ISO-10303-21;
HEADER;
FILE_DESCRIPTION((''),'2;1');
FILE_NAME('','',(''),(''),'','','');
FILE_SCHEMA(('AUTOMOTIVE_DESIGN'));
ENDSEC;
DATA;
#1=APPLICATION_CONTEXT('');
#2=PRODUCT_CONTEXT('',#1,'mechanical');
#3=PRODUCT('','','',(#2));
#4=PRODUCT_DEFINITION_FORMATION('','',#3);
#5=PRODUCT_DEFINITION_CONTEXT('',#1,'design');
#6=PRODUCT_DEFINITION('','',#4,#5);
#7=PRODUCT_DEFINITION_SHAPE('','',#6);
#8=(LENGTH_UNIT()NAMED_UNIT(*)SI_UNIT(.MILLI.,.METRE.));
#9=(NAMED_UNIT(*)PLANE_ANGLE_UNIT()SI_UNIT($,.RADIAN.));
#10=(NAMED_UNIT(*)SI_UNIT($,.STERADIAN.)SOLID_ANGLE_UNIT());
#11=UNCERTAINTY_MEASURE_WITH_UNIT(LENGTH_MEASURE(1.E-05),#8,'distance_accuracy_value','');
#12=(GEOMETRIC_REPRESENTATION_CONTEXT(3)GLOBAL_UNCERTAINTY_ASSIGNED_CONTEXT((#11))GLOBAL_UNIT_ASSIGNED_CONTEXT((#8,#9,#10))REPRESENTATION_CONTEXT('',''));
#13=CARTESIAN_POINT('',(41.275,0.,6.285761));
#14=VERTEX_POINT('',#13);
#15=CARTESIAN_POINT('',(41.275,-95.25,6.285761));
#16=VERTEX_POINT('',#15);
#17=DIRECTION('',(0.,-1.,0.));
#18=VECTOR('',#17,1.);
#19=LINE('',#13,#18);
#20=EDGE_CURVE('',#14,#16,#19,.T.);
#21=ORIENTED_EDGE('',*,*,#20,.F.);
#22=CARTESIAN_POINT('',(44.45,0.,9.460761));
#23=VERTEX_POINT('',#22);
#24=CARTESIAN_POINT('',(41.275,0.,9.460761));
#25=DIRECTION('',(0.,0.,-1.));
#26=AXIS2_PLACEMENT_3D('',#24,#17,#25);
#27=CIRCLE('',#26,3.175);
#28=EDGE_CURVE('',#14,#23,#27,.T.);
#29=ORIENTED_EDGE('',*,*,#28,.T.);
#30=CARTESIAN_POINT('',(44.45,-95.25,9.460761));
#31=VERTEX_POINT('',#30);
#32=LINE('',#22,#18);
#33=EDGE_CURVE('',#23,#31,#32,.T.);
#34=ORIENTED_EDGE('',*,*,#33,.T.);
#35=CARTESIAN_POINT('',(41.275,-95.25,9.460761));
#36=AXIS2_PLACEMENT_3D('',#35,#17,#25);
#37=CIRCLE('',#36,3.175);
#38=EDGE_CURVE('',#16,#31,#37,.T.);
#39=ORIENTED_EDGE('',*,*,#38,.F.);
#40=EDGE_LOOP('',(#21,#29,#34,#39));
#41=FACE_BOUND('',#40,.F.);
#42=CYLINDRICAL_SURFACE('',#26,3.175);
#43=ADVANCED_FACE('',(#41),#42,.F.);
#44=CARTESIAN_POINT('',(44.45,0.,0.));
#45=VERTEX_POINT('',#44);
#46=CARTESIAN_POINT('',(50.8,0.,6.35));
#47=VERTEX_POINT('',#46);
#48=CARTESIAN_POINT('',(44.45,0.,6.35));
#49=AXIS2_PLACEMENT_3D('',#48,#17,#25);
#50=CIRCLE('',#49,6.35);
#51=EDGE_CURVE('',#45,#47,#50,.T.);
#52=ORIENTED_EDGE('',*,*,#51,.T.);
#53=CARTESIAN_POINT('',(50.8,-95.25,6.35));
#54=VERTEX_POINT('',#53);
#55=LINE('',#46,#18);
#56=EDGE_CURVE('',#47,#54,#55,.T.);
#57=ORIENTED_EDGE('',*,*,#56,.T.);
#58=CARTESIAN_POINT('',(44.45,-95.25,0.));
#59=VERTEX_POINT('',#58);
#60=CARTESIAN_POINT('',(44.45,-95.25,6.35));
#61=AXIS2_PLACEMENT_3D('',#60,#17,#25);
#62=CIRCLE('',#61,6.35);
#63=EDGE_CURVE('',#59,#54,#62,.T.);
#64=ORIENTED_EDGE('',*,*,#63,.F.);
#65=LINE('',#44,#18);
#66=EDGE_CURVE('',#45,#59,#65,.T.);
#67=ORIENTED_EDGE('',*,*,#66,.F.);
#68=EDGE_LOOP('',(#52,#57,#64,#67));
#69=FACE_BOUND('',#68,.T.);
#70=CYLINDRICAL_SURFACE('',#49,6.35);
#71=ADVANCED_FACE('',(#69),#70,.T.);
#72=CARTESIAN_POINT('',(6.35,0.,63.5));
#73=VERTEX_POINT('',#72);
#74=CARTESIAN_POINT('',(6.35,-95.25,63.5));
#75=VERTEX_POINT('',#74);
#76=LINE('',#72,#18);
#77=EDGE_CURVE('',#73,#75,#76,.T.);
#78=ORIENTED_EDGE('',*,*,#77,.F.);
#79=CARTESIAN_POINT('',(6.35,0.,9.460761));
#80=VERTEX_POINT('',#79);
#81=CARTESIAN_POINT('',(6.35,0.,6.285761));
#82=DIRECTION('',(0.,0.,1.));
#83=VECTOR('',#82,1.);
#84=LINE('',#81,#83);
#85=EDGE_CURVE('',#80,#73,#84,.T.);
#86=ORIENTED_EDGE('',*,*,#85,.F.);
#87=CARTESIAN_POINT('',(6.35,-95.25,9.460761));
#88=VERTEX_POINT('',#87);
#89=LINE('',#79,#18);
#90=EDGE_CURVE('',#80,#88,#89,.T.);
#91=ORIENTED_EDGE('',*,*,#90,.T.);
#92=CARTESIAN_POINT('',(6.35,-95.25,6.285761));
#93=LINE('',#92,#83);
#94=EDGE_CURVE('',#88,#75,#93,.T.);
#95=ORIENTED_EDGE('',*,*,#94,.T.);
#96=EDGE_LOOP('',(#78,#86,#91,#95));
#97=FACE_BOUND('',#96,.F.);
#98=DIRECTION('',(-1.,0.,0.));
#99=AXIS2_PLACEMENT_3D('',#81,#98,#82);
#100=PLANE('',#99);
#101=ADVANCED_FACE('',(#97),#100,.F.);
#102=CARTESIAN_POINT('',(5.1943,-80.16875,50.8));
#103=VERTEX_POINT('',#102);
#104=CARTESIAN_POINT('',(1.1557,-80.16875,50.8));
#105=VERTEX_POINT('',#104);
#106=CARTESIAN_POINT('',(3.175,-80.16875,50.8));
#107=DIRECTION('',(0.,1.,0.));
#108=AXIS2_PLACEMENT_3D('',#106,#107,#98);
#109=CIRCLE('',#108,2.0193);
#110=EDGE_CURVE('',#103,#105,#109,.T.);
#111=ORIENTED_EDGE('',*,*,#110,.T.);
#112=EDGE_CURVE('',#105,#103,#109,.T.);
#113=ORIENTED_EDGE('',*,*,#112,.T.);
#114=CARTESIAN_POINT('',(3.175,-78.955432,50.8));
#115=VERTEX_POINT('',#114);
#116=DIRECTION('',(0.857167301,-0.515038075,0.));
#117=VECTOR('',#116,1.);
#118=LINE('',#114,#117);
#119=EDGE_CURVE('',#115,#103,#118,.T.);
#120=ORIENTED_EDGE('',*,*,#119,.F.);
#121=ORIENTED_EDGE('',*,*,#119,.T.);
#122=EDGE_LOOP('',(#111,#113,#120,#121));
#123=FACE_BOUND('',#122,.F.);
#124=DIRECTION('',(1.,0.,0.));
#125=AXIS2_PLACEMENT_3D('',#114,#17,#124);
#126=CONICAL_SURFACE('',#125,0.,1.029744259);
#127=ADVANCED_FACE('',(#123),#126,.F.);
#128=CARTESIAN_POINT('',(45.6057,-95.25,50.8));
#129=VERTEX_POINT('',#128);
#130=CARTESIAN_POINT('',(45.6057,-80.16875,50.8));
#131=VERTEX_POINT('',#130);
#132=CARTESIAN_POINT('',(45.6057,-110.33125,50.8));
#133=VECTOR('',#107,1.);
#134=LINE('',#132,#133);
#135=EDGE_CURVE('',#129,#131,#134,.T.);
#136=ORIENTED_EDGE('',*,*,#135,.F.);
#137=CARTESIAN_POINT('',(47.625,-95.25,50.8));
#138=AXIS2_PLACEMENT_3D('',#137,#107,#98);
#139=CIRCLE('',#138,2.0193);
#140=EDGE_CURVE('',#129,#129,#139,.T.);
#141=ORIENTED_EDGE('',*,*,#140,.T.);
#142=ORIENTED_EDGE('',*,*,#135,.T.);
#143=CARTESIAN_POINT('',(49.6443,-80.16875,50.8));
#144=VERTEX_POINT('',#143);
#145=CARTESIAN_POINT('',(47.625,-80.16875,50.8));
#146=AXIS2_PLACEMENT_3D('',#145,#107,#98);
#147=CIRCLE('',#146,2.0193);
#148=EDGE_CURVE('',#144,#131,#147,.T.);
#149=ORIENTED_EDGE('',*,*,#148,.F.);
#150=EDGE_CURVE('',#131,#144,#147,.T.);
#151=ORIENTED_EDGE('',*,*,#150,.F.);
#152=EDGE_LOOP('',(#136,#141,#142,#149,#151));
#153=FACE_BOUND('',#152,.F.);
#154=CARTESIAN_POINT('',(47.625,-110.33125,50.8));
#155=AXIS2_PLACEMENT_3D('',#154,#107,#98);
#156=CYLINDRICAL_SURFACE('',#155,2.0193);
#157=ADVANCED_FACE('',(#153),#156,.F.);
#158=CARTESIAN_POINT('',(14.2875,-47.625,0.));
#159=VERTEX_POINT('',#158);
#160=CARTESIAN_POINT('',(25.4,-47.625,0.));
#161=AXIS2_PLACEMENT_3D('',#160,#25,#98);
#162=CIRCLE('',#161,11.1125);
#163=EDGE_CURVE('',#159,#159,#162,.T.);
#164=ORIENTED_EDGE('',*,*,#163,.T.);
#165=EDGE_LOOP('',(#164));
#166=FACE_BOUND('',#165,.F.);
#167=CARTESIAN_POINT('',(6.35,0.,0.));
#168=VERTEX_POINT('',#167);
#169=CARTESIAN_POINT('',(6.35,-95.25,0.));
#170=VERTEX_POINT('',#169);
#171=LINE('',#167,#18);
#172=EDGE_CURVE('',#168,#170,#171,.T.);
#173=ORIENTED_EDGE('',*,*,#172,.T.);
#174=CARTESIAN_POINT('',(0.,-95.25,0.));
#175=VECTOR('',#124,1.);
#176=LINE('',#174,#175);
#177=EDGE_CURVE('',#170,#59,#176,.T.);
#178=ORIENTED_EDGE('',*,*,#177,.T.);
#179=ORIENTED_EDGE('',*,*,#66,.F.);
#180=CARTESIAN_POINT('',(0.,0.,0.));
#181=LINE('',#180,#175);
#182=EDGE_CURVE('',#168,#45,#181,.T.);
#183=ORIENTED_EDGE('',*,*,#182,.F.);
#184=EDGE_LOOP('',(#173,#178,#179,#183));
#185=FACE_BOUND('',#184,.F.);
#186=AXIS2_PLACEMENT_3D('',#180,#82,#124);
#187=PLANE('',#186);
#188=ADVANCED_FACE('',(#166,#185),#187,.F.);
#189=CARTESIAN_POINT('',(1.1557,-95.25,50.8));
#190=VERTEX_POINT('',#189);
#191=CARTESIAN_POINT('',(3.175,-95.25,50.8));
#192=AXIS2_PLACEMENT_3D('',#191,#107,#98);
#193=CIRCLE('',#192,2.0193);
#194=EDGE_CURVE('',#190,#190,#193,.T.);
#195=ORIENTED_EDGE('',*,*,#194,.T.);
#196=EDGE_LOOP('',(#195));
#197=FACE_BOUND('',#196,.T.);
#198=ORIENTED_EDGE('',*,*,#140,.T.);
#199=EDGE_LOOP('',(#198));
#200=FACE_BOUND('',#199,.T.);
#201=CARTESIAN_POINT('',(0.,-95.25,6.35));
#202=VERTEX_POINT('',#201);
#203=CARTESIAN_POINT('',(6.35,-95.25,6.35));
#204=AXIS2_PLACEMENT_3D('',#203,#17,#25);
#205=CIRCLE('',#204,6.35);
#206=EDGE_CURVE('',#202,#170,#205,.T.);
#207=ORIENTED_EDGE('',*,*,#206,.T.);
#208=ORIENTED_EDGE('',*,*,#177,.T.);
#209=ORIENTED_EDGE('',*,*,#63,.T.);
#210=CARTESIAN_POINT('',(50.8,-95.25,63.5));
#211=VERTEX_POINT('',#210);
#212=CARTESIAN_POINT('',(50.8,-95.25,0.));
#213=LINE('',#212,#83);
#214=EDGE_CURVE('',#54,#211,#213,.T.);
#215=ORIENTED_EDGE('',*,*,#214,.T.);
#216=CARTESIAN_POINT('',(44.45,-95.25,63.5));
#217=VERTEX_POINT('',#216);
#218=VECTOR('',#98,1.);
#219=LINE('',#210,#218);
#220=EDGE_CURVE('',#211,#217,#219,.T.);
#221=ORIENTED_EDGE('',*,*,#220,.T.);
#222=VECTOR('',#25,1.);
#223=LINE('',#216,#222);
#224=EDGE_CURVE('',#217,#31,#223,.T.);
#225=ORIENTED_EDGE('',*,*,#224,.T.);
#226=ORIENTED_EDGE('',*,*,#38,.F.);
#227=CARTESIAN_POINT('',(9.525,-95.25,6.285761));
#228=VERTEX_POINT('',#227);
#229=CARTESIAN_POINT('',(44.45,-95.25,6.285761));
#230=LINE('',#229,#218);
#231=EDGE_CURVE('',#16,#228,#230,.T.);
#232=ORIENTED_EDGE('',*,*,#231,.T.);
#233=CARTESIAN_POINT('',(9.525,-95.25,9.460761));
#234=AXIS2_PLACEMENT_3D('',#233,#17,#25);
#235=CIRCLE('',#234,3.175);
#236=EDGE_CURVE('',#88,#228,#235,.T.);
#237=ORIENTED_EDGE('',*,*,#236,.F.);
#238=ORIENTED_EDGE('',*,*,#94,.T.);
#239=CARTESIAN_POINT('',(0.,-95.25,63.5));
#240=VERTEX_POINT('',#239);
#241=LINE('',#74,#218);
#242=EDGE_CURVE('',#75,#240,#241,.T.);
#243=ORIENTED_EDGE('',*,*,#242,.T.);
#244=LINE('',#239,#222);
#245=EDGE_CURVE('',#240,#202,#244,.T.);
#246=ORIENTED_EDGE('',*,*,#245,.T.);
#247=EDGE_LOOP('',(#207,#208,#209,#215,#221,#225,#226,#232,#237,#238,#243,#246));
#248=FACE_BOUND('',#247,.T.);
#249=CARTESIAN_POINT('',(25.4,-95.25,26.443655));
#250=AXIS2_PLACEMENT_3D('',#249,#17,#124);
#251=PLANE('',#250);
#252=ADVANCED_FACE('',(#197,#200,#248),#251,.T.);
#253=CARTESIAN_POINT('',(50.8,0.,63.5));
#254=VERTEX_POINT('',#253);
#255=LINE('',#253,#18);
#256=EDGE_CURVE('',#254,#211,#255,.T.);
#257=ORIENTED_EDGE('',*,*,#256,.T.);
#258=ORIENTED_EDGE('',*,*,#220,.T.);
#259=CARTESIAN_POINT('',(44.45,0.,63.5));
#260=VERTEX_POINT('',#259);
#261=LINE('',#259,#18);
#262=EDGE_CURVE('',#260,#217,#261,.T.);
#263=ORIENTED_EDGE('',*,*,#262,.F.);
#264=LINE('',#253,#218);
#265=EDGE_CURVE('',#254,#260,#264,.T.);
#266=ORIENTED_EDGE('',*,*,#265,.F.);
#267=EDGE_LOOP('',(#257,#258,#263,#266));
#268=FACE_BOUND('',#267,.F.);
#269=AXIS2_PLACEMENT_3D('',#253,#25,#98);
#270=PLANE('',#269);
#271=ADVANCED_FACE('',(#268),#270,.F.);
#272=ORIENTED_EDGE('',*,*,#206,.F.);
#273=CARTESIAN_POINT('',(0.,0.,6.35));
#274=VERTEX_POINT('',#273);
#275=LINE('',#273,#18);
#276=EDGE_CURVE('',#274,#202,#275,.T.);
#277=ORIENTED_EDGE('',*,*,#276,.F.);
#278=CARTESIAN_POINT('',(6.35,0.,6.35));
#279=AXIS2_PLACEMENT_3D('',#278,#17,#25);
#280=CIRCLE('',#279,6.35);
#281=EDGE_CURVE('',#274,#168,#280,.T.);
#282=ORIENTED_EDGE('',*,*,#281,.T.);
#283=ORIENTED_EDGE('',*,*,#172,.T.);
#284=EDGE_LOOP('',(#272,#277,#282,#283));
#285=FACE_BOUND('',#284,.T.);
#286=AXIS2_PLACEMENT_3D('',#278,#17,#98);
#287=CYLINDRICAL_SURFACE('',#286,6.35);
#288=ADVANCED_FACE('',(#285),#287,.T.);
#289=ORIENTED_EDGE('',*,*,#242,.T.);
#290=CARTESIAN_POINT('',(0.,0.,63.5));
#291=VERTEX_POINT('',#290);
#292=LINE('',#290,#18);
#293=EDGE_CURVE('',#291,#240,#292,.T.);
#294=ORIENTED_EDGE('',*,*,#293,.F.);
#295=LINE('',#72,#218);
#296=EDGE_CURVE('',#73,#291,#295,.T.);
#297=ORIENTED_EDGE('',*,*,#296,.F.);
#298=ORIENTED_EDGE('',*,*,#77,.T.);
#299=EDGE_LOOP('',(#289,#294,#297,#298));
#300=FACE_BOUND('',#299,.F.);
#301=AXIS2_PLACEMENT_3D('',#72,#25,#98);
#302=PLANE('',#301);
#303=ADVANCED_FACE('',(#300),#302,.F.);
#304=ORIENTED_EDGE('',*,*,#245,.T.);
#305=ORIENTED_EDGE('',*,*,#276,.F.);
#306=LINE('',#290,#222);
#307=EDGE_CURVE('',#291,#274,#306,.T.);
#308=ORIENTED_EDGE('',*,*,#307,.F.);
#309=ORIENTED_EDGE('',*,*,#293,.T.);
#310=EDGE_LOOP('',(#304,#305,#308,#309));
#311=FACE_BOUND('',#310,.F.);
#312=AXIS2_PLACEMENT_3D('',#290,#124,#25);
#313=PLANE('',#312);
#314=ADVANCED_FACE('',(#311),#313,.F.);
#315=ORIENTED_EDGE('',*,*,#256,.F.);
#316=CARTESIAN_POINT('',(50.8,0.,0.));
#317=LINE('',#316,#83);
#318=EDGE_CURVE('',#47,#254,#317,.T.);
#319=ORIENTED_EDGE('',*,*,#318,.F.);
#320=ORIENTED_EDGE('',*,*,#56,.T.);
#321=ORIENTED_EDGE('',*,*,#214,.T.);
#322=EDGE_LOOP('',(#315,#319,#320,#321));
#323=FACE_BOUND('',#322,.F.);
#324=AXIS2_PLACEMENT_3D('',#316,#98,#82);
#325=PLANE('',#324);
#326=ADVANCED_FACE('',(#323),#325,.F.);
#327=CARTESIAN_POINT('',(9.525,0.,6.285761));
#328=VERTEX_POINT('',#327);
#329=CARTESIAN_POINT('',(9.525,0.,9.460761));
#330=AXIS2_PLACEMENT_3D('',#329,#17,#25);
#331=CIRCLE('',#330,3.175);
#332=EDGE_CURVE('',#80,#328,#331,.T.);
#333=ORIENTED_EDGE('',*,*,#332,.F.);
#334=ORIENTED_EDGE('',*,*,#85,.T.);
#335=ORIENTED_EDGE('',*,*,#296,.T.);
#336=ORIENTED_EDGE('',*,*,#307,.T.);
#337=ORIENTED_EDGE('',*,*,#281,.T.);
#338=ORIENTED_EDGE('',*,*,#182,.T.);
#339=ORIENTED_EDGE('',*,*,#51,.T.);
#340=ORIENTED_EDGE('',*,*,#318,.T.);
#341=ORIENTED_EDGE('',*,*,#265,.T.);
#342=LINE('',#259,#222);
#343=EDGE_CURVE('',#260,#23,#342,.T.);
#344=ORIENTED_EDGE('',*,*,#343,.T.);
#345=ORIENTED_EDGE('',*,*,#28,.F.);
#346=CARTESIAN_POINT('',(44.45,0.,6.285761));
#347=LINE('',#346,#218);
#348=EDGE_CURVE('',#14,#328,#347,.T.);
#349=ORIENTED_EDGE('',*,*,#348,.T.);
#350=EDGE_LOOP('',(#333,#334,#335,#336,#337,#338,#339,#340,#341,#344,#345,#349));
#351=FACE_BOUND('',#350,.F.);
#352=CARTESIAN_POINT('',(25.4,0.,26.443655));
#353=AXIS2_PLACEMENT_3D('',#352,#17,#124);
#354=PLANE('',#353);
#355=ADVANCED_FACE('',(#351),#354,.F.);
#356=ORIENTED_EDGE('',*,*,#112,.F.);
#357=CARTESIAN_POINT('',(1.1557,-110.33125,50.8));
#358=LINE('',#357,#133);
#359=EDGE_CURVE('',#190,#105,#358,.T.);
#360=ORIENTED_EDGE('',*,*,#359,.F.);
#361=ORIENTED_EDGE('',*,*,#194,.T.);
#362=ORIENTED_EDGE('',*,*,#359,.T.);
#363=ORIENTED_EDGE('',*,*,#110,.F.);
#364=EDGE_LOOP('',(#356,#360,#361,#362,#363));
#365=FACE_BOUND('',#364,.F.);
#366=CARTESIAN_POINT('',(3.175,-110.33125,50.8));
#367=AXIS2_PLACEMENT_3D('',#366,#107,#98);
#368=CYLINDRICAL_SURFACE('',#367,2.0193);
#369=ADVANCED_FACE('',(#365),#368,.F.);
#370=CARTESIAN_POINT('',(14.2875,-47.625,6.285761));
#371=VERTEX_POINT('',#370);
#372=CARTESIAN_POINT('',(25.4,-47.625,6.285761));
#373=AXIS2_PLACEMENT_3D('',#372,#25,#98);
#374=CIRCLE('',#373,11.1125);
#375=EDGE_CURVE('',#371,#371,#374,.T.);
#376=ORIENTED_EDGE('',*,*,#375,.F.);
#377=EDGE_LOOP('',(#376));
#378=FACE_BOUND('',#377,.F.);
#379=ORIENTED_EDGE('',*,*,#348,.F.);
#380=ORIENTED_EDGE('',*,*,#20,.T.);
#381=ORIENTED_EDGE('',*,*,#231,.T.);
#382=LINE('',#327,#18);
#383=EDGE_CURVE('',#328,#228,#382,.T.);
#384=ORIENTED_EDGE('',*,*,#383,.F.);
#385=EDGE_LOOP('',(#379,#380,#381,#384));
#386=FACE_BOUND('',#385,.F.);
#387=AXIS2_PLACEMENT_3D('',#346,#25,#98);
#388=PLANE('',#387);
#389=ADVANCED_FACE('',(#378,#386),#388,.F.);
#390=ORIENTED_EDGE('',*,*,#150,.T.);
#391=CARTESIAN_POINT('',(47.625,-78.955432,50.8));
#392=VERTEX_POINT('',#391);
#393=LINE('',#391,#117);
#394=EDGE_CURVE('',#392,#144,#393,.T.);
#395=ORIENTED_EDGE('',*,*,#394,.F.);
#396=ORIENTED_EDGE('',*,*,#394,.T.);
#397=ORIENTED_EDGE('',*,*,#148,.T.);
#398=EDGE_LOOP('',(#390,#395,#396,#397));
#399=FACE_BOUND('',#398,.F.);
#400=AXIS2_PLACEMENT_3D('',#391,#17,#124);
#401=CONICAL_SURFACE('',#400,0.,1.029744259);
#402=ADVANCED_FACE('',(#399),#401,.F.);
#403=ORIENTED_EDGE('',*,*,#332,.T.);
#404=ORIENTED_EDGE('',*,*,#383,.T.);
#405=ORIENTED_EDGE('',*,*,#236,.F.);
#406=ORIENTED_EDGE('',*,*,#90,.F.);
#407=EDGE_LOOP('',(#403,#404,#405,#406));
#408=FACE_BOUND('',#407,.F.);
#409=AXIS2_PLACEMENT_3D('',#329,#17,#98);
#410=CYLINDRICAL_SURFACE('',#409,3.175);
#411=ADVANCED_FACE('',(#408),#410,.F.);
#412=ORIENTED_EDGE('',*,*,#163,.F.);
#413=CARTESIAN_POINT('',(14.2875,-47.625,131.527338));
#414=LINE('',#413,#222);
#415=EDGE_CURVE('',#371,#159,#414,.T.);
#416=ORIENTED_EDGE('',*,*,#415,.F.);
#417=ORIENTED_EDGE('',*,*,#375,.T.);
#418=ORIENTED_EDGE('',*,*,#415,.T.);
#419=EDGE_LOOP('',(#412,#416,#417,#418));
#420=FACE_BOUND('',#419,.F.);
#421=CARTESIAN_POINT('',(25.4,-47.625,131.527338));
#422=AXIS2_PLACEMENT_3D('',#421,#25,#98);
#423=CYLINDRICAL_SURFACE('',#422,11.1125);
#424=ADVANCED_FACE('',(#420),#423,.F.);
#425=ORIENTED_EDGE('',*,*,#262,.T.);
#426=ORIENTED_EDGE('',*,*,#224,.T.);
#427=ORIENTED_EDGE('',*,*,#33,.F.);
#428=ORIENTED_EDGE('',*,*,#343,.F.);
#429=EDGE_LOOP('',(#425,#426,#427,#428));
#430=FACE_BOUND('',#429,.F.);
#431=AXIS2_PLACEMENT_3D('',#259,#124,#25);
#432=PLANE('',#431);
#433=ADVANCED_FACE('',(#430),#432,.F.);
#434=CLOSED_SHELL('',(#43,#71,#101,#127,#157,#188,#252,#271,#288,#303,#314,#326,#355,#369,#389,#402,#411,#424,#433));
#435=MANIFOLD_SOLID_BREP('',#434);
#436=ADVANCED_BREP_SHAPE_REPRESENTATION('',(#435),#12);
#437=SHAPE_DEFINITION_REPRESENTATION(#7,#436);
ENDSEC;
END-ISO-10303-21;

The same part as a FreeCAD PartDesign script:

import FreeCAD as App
import Part
import Sketcher

V = App.Vector
Q = App.Units.Quantity


def edges_at(feature, points):
    """Names of the edges that pass closest to the given points."""
    edges = feature.Shape.Edges
    near = lambda p: min(range(len(edges)), key=lambda i: edges[i].distToShape(Part.Vertex(*p))[0])
    return sorted({f"Edge{near(p) + 1}" for p in points})

doc = App.newDocument("Part")
body = doc.addObject("PartDesign::Body", "Body")

# Sketch on XZ plane
sketch1 = body.newObject("Sketcher::SketchObject", "Sketch")
sketch1.AttachmentSupport = (doc.getObject("XZ_Plane"), [""])
sketch1.MapMode = "FlatFace"
sketch1.addGeometry([
    Part.LineSegment(V(0, 63.5, 0), V(0, 0, 0)),  # 0
    Part.LineSegment(V(0, 0, 0), V(50.8, 0, 0)),  # 1
    Part.LineSegment(V(50.8, 0, 0), V(50.8, 63.5, 0)),  # 2
    Part.LineSegment(V(50.8, 63.5, 0), V(44.45, 63.5, 0)),  # 3
    Part.LineSegment(V(44.45, 63.5, 0), V(44.45, 6.285761, 0)),  # 4
    Part.LineSegment(V(44.45, 6.285761, 0), V(6.35, 6.285761, 0)),  # 5
    Part.LineSegment(V(6.35, 6.285761, 0), V(6.35, 63.5, 0)),  # 6
    Part.LineSegment(V(6.35, 63.5, 0), V(0, 63.5, 0)),  # 7
], False)
sketch1.addConstraint([
    Sketcher.Constraint("Coincident", 0, 2, 1, 1),
    Sketcher.Constraint("Coincident", 1, 2, 2, 1),
    Sketcher.Constraint("Coincident", 2, 2, 3, 1),
    Sketcher.Constraint("Coincident", 3, 2, 4, 1),
    Sketcher.Constraint("Coincident", 4, 2, 5, 1),
    Sketcher.Constraint("Coincident", 5, 2, 6, 1),
    Sketcher.Constraint("Coincident", 6, 2, 7, 1),
    Sketcher.Constraint("Coincident", 7, 2, 0, 1),
    Sketcher.Constraint("Vertical", 0),
    Sketcher.Constraint("Horizontal", 1),
    Sketcher.Constraint("Vertical", 2),
    Sketcher.Constraint("Horizontal", 3),
    Sketcher.Constraint("Vertical", 4),
    Sketcher.Constraint("Horizontal", 5),
    Sketcher.Constraint("Vertical", 6),
    Sketcher.Constraint("Horizontal", 7),
    Sketcher.Constraint("Coincident", 0, 2, -1, 1),
    Sketcher.Constraint("Horizontal", 3, 2, 6, 2),
    Sketcher.Constraint("Equal", 3, 7),
    Sketcher.Constraint("DistanceX", 1, 1, 1, 2, Q("2 in")),
    Sketcher.Constraint("DistanceX", 5, 2, 5, 1, Q("1.5 in")),
    Sketcher.Constraint("DistanceY", 0, 2, 0, 1, Q("2.5 in")),
    Sketcher.Constraint("DistanceY", 4, 2, 4, 1, 57.214239),
])
pad1 = body.newObject("PartDesign::Pad", "Pad")
pad1.Profile = sketch1
pad1.Length = Q("3.75 in")
doc.recompute()

fillet = body.newObject("PartDesign::Fillet", "Fillet")
fillet.Base = (pad1, edges_at(pad1, [(50.8, -47.625, 0), (0, -47.625, 0)]))
fillet.Radius = Q("0.25 in")
doc.recompute()

fillet2 = body.newObject("PartDesign::Fillet", "Fillet001")
fillet2.Base = (fillet, edges_at(fillet, [(44.45, -47.625, 6.286), (6.35, -47.625, 6.286)]))
fillet2.Radius = Q("0.125 in")

# Sketch on XZ plane
sketch2 = body.newObject("Sketcher::SketchObject", "Sketch001")
sketch2.AttachmentSupport = (doc.getObject("XZ_Plane"), [""])
sketch2.MapMode = "FlatFace"
sketch2.AttachmentOffset = App.Placement(V(0, 0, 3.75 * 25.4), App.Rotation())
sketch2.addGeometry([
    Part.Circle(V(3.175, 50.8, 0), V(0, 0, 1), 2.0193),
    Part.Circle(V(47.625, 50.8, 0), V(0, 0, 1), 2.0193),
], False)
sketch2.addConstraint([
    Sketcher.Constraint("Equal", 0, 1),
    Sketcher.Constraint("Horizontal", 0, 3, 1, 3),
    Sketcher.Constraint("Diameter", 0, Q("0.159 in")),
    Sketcher.Constraint("DistanceY", -1, 1, 0, 3, Q("2 in")),
    Sketcher.Constraint("DistanceX", 0, 3, 1, 3, Q("1.75 in")),
    Sketcher.Constraint("DistanceX", -1, 1, 0, 3, Q("0.125 in")),
])
doc.recompute()
hole = body.newObject("PartDesign::Hole", "Hole")
hole.Profile = sketch2
hole.ThreadType = "None"
hole.Diameter = Q("0.159 in")
hole.DepthType = "Dimension"
hole.Depth = Q("0.59375 in")
hole.DrillPoint = "Angled"
hole.DrillPointAngle = 118

# Sketch on XY plane
sketch3 = body.newObject("Sketcher::SketchObject", "Sketch002")
sketch3.AttachmentSupport = (doc.getObject("XY_Plane"), [""])
sketch3.MapMode = "FlatFace"
sketch3.AttachmentOffset = App.Placement(V(0, 0, 6.285761), App.Rotation())
sketch3.addGeometry(Part.Circle(V(25.4, -47.625, 0), V(0, 0, 1), 11.1125), False)
sketch3.addConstraint([
    Sketcher.Constraint("Diameter", 0, Q("0.875 in")),
    Sketcher.Constraint("DistanceX", -1, 1, 0, 3, Q("1 in")),
    Sketcher.Constraint("DistanceY", 0, 3, -1, 1, Q("1.875 in")),
])
doc.recompute()
hole2 = body.newObject("PartDesign::Hole", "Hole001")
hole2.Profile = sketch3
hole2.ThreadType = "None"
hole2.Diameter = Q("0.875 in")
hole2.DepthType = "ThroughAll"

doc.recompute()
